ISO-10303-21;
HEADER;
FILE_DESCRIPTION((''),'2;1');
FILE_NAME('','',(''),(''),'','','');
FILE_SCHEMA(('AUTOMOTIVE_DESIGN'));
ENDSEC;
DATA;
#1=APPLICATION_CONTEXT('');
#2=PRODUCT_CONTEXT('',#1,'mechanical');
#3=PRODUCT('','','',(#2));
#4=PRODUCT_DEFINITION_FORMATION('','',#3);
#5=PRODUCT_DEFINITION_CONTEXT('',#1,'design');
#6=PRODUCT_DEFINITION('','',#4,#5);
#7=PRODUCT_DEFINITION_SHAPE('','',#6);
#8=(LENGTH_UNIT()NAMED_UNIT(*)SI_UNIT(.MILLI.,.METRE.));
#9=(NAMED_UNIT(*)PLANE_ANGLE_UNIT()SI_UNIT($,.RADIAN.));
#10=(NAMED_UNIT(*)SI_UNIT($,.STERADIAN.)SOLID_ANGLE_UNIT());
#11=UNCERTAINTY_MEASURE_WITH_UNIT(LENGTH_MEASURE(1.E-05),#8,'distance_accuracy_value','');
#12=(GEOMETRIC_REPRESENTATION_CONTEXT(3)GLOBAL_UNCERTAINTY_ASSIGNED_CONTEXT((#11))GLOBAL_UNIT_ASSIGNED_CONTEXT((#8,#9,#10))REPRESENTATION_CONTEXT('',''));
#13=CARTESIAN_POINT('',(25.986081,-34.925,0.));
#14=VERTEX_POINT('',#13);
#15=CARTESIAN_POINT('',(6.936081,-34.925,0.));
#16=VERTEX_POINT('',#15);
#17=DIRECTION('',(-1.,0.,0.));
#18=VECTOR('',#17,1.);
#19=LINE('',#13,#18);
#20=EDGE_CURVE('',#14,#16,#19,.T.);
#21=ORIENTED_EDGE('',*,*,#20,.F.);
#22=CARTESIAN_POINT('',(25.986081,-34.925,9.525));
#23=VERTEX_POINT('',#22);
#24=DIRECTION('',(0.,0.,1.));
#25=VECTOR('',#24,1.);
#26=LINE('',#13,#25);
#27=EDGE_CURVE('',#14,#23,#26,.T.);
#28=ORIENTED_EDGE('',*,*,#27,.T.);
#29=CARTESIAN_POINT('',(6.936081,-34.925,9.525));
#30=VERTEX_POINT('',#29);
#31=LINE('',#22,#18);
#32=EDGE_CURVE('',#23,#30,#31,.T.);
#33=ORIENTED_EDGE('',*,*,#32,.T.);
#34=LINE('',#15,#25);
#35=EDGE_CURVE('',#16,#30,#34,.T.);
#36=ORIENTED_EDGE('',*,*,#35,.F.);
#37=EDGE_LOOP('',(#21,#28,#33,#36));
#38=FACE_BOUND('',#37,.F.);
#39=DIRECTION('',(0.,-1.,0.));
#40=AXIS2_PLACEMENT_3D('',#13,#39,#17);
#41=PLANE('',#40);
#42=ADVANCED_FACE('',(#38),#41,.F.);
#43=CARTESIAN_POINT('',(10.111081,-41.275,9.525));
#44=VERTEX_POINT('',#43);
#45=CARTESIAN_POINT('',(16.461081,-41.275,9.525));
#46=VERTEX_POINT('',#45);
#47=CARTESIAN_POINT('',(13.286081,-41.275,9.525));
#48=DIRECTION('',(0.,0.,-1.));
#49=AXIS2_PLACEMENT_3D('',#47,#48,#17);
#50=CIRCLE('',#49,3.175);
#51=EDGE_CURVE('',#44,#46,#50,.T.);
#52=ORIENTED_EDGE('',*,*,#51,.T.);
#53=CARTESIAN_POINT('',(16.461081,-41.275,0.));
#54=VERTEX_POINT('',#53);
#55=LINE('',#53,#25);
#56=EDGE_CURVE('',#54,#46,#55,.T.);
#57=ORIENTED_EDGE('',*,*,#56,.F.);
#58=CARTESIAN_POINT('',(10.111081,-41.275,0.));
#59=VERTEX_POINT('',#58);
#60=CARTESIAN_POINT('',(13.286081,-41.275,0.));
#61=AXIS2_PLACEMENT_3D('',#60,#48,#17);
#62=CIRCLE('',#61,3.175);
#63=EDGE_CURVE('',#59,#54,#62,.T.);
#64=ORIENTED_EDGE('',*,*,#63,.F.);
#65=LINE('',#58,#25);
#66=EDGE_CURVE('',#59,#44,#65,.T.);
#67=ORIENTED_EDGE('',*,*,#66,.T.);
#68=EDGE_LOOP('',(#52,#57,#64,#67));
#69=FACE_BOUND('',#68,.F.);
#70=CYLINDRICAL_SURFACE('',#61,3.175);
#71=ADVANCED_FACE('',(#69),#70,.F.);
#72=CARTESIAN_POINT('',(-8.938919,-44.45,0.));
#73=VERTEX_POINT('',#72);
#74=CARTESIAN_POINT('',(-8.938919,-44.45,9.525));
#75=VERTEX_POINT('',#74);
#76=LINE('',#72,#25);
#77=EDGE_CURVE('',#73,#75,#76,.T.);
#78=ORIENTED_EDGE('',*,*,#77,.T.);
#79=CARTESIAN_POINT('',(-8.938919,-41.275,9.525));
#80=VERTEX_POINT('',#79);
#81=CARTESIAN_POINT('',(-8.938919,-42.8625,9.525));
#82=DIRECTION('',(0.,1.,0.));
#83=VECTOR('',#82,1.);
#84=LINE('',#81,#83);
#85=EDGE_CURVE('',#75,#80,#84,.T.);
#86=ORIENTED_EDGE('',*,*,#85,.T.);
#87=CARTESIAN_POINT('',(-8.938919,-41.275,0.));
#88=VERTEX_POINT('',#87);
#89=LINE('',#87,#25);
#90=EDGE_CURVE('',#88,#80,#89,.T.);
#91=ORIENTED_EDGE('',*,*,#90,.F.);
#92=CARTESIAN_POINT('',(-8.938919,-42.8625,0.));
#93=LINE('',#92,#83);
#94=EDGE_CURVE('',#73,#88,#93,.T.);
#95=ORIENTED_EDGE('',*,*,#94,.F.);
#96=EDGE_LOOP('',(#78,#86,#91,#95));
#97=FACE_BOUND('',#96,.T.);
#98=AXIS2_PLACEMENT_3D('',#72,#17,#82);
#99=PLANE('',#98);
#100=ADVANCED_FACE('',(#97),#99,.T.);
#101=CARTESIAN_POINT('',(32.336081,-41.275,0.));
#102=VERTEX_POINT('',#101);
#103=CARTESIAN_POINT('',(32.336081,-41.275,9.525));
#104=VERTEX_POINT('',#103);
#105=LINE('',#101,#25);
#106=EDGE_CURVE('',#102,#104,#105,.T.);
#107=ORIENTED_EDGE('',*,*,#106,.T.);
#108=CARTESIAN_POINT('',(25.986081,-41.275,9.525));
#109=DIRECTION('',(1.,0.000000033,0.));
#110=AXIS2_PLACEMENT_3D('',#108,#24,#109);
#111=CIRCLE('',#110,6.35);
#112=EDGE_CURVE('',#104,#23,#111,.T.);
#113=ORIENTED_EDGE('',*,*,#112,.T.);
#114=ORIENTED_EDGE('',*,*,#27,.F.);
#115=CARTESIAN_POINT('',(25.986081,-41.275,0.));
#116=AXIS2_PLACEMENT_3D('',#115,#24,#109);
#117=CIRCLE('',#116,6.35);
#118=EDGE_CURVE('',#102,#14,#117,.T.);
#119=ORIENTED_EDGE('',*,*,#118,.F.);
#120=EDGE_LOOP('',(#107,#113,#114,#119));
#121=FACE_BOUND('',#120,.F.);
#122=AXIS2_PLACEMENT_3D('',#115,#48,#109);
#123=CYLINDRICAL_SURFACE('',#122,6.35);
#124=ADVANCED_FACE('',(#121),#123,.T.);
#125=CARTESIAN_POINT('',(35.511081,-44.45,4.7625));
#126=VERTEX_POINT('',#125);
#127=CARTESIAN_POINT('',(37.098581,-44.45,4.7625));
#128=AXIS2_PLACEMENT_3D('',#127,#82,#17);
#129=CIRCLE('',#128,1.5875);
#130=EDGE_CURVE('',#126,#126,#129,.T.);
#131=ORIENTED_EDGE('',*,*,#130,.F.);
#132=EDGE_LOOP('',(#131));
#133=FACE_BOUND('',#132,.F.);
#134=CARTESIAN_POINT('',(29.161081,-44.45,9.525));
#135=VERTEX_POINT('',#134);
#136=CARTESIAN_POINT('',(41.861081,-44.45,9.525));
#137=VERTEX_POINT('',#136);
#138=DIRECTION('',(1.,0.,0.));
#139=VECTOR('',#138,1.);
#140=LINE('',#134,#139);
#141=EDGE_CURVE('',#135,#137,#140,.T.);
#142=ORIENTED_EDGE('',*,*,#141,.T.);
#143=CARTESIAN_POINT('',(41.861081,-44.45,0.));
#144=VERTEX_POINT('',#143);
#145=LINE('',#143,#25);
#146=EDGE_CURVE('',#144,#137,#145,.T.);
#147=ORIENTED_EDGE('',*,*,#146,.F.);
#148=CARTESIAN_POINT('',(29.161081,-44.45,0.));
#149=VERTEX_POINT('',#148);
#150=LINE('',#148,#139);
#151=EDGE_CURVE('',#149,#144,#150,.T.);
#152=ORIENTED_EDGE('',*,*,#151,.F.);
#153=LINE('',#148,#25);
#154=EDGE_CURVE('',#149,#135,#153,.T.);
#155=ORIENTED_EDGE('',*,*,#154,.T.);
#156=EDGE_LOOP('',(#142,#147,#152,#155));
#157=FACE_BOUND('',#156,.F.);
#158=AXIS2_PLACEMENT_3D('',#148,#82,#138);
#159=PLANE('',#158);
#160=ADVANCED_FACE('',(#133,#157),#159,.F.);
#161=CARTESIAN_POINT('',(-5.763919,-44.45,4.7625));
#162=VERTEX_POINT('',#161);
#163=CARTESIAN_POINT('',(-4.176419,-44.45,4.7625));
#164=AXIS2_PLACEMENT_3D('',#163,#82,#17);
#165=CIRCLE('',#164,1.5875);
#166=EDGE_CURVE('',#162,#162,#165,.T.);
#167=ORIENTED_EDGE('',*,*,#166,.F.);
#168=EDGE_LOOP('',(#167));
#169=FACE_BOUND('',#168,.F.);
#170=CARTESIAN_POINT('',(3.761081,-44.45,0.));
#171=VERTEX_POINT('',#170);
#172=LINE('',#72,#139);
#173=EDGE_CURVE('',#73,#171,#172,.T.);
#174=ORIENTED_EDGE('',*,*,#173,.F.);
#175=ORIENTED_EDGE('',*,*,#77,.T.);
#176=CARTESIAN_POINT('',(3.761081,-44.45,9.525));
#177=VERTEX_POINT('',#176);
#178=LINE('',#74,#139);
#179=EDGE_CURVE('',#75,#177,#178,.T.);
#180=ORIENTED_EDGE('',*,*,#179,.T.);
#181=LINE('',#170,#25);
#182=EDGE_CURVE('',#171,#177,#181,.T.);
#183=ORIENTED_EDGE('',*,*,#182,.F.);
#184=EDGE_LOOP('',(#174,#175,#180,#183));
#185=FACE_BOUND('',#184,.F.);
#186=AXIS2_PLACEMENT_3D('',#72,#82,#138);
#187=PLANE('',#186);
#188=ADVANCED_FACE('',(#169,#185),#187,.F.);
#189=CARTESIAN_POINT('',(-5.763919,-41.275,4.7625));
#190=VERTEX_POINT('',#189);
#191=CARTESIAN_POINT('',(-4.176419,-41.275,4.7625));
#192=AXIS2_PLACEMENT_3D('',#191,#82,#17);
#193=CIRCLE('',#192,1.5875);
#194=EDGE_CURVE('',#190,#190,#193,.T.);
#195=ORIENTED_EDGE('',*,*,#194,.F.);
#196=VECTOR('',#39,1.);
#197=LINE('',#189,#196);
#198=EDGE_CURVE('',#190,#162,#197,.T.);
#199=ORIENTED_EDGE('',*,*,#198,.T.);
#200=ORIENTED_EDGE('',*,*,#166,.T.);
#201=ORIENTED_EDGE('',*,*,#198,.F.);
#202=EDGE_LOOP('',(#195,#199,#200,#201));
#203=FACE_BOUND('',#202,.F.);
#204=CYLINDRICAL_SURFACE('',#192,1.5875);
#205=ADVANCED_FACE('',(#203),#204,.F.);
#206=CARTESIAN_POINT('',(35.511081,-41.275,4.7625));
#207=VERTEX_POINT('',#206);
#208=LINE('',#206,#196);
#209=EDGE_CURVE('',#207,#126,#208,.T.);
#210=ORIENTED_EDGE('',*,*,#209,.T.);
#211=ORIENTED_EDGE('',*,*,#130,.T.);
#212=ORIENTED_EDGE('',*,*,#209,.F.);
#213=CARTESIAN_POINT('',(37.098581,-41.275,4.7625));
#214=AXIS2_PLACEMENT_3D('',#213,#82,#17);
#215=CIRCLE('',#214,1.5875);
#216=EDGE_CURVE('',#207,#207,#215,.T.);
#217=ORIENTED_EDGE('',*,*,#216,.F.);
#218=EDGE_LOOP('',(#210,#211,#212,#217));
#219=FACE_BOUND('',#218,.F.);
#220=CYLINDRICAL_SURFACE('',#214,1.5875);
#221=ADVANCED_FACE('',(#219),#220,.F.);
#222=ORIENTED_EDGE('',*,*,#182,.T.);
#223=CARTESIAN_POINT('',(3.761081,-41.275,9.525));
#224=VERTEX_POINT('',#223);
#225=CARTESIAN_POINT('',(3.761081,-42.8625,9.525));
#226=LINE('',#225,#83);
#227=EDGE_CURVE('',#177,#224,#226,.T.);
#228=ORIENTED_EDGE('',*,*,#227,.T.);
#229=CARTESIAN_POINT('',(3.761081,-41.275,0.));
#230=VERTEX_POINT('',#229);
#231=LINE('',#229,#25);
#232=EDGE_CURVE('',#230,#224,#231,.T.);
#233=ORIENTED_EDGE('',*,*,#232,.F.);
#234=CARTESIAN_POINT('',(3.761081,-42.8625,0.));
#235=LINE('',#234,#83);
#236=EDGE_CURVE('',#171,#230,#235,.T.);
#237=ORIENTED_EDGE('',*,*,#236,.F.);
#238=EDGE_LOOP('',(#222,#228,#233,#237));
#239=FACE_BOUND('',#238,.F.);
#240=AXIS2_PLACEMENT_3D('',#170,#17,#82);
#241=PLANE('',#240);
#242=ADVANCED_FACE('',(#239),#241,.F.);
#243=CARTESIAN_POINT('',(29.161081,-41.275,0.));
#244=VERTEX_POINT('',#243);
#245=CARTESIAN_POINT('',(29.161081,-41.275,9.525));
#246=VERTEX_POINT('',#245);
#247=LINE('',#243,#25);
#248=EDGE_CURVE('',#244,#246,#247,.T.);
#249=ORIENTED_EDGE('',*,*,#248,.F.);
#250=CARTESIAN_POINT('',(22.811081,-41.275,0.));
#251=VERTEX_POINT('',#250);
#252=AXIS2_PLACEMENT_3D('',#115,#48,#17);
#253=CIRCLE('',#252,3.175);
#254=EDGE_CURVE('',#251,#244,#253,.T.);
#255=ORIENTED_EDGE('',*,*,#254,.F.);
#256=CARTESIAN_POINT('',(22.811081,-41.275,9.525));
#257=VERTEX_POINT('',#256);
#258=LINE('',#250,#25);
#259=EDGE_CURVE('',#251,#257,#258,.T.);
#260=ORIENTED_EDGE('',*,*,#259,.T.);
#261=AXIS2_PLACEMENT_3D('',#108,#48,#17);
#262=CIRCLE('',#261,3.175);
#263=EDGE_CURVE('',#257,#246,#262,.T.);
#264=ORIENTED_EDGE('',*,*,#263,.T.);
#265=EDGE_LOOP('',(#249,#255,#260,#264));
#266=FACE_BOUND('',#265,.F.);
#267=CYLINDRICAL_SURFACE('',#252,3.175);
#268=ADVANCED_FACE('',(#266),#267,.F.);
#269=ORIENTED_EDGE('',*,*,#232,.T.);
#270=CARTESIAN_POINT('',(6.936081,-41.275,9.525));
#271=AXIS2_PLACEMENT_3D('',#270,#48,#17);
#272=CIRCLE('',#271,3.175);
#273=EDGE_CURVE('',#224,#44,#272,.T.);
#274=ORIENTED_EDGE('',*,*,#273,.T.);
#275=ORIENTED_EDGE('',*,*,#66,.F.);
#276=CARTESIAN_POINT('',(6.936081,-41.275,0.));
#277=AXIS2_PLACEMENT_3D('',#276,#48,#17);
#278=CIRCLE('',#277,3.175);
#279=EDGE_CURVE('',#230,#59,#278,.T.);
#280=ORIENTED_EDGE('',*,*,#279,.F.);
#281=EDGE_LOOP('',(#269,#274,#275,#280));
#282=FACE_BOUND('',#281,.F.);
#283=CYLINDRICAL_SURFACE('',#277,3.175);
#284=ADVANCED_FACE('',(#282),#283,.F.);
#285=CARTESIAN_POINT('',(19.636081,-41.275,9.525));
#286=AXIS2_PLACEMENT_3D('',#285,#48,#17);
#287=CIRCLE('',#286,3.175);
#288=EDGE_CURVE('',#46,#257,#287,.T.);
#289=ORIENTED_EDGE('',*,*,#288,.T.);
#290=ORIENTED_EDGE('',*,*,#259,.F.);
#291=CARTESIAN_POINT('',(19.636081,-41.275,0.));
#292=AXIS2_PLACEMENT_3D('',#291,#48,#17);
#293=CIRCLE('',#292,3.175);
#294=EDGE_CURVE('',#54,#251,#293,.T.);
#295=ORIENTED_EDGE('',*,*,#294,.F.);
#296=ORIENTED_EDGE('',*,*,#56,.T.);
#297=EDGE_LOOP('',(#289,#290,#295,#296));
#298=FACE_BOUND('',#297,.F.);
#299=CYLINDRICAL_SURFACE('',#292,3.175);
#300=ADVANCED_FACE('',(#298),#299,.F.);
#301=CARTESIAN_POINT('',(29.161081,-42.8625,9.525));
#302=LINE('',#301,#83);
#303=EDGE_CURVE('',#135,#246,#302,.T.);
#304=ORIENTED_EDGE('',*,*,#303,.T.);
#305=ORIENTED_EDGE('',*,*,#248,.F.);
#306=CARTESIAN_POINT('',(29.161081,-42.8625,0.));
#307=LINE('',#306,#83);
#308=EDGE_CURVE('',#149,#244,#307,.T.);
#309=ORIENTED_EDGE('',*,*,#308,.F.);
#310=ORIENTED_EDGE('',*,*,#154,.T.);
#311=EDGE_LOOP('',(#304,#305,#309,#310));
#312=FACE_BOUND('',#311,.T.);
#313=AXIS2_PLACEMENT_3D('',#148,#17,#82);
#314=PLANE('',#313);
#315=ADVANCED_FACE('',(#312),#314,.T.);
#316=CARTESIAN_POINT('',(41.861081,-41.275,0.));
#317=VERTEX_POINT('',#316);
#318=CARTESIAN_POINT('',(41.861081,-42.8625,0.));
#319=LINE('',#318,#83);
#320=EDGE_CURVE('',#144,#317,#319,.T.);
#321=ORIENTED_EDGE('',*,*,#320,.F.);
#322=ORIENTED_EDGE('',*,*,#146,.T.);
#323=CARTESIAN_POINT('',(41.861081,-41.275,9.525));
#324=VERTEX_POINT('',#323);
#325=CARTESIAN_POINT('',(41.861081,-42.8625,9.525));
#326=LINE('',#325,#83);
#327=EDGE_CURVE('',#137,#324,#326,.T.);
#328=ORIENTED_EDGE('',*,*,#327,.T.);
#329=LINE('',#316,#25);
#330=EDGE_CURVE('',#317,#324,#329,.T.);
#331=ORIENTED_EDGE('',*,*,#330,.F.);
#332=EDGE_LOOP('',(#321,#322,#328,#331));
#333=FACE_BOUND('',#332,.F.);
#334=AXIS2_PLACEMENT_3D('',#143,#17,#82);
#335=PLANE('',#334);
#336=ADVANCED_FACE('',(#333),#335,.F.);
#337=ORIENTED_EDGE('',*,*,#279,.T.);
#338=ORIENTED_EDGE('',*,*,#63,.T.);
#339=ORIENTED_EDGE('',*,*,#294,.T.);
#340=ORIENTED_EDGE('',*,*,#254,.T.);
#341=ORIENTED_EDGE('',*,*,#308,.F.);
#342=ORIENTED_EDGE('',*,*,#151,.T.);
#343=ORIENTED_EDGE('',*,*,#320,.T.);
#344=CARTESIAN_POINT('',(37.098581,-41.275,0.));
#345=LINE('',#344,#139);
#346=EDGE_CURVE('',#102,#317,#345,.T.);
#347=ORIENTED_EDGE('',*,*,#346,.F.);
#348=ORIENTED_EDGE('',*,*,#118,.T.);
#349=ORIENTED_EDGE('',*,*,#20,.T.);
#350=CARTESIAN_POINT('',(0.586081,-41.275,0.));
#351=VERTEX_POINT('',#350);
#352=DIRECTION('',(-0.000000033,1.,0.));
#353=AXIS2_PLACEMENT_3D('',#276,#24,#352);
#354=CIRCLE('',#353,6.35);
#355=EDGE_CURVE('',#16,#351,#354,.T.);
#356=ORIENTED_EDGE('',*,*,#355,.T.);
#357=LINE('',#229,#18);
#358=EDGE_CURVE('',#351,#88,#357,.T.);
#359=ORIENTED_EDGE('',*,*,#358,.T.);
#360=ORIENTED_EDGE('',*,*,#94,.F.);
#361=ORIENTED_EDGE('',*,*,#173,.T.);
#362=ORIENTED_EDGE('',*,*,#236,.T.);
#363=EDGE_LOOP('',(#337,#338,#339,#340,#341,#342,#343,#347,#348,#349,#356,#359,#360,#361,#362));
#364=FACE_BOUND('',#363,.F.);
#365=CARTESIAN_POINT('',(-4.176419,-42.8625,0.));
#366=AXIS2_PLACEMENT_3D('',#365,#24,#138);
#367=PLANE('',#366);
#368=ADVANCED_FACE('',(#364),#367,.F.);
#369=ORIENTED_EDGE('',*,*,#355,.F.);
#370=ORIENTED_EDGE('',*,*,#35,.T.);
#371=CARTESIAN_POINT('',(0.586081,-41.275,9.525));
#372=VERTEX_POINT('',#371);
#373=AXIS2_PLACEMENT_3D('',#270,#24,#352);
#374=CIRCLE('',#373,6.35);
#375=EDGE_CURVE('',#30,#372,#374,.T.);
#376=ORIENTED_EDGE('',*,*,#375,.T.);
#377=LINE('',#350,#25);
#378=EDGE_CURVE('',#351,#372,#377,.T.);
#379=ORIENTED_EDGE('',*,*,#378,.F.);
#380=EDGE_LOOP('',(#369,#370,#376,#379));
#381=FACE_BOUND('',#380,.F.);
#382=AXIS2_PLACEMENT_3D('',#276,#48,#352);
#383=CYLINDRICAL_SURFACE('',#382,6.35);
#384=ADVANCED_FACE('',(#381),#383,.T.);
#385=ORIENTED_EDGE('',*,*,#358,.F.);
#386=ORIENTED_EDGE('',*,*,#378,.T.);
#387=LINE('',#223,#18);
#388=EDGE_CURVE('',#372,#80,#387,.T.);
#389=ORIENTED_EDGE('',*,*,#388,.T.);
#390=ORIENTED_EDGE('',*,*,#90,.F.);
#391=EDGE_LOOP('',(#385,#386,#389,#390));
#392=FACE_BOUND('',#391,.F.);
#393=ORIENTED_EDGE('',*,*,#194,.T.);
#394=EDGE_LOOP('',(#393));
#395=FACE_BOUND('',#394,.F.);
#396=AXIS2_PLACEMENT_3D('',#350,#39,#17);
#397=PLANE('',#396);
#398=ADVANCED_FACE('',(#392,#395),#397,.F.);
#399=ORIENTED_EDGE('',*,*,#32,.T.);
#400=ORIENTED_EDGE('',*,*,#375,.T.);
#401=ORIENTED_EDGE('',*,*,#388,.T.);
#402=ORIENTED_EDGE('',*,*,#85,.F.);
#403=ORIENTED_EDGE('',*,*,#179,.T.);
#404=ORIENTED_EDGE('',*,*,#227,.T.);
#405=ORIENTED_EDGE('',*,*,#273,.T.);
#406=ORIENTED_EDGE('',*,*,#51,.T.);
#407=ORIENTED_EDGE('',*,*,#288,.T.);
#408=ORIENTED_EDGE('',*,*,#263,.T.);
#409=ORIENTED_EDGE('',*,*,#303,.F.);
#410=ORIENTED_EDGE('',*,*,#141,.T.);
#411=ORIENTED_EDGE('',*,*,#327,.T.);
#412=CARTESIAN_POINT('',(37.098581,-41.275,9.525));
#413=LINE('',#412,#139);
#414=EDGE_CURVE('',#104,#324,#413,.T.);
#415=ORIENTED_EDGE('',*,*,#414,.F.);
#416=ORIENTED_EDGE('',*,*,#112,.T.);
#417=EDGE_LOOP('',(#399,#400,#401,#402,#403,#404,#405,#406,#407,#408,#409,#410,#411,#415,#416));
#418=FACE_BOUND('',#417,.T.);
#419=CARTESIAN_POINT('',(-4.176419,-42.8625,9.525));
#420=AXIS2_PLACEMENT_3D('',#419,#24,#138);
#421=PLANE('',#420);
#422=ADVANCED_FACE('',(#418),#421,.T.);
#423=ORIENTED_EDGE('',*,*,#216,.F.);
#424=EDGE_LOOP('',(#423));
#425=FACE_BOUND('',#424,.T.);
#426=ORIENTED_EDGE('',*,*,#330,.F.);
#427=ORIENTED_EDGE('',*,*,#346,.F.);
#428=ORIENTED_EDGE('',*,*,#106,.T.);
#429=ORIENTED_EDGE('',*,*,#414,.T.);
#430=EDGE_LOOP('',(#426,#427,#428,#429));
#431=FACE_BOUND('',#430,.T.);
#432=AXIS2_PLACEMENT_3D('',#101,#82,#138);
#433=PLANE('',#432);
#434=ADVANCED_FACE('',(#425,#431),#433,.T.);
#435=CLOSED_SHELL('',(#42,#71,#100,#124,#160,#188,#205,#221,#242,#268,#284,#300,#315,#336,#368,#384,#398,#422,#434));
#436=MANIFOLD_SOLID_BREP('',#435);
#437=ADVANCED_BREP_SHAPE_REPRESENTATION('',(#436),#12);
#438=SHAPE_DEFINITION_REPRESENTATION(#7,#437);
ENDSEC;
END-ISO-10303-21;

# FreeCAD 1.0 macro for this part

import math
import FreeCAD as App
import Part
import Sketcher

V = App.Vector
Q = App.Units.Quantity

doc = App.newDocument("Part")
body = doc.addObject("PartDesign::Body", "Body")

# Sketch on XY plane
sketch1 = body.newObject("Sketcher::SketchObject", "Sketch")
sketch1.AttachmentSupport = (doc.getObject("XY_Plane"), [""])
sketch1.MapMode = "FlatFace"
sketch1.addGeometry([
    Part.LineSegment(V(-8.9, -41.3, 0), V(-8.9, -44.5, 0)),  # 0
    Part.LineSegment(V(-8.9, -44.5, 0), V(3.8, -44.5, 0)),  # 1
    Part.LineSegment(V(3.8, -44.5, 0), V(3.8, -41.3, 0)),  # 2
    Part.ArcOfCircle(Part.Circle(V(6.9, -41.3, 0), V(0, 0, 1), 3.2), math.radians(0), math.radians(180)),  # 3
    Part.ArcOfCircle(Part.Circle(V(13.3, -41.3, 0), V(0, 0, 1), 3.2), math.radians(0), math.radians(180)),  # 4
    Part.ArcOfCircle(Part.Circle(V(19.6, -41.3, 0), V(0, 0, 1), 3.2), math.radians(0), math.radians(180)),  # 5
    Part.ArcOfCircle(Part.Circle(V(26, -41.3, 0), V(0, 0, 1), 3.2), math.radians(0), math.radians(180)),  # 6
    Part.LineSegment(V(29.2, -41.3, 0), V(29.2, -44.5, 0)),  # 7
    Part.LineSegment(V(29.2, -44.5, 0), V(41.9, -44.5, 0)),  # 8
    Part.LineSegment(V(41.9, -44.5, 0), V(41.9, -41.3, 0)),  # 9
    Part.LineSegment(V(41.9, -41.3, 0), V(32.3, -41.3, 0)),  # 10
    Part.ArcOfCircle(Part.Circle(V(26, -41.3, 0), V(0, 0, 1), 6.4), math.radians(0), math.radians(90)),  # 11
    Part.LineSegment(V(26, -34.9, 0), V(6.9, -34.9, 0)),  # 12
    Part.ArcOfCircle(Part.Circle(V(6.9, -41.3, 0), V(0, 0, 1), 6.4), math.radians(90), math.radians(180)),  # 13
    Part.LineSegment(V(0.6, -41.3, 0), V(-8.9, -41.3, 0)),  # 14
], False)
sketch1.addConstraint([
    Sketcher.Constraint("Coincident", 0, 2, 1, 1),
    Sketcher.Constraint("Coincident", 1, 2, 2, 1),
    Sketcher.Constraint("Tangent", 2, 2, 3, 2),
    Sketcher.Constraint("Tangent", 3, 1, 4, 2),
    Sketcher.Constraint("Tangent", 4, 1, 5, 2),
    Sketcher.Constraint("Tangent", 5, 1, 6, 2),
    Sketcher.Constraint("Tangent", 6, 1, 7, 1),
    Sketcher.Constraint("Coincident", 7, 2, 8, 1),
    Sketcher.Constraint("Coincident", 8, 2, 9, 1),
    Sketcher.Constraint("Coincident", 9, 2, 10, 1),
    Sketcher.Constraint("Coincident", 10, 2, 11, 1),
    Sketcher.Constraint("Tangent", 11, 2, 12, 1),
    Sketcher.Constraint("Tangent", 12, 2, 13, 1),
    Sketcher.Constraint("Coincident", 13, 2, 14, 1),
    Sketcher.Constraint("Coincident", 14, 2, 0, 1),
    Sketcher.Constraint("Vertical", 0),
    Sketcher.Constraint("Horizontal", 1),
    Sketcher.Constraint("Vertical", 2),
    Sketcher.Constraint("Vertical", 7),
    Sketcher.Constraint("Horizontal", 8),
    Sketcher.Constraint("Vertical", 9),
    Sketcher.Constraint("Horizontal", 10),
    Sketcher.Constraint("Horizontal", 12),
    Sketcher.Constraint("Horizontal", 14),
    Sketcher.Constraint("Coincident", 11, 3, 6, 3),
    Sketcher.Constraint("Coincident", 13, 3, 3, 3),
    Sketcher.Constraint("Equal", 3, 4),
    Sketcher.Constraint("Equal", 4, 5),
    Sketcher.Constraint("Equal", 5, 6),
    Sketcher.Constraint("Equal", 11, 13),
    Sketcher.Constraint("Horizontal", 3, 3, 4, 3),
    Sketcher.Constraint("Horizontal", 4, 3, 5, 3),
    Sketcher.Constraint("Horizontal", 1, 2, 7, 2),
    Sketcher.Constraint("Horizontal", 6, 1, 9, 2),
    Sketcher.Constraint("Horizontal", 10, 2, 13, 2),
    Sketcher.Constraint("Equal", 1, 8),
    Sketcher.Constraint("Radius", 11, Q("0.25 in")),
    Sketcher.Constraint("DistanceX", 1, 1, 1, 2, Q("0.5 in")),
    Sketcher.Constraint("Radius", 3, Q("0.125 in")),
    Sketcher.Constraint("DistanceY", 0, 2, 0, 1, Q("0.125 in")),
    Sketcher.Constraint("DistanceY", 0, 2, -1, 1, Q("1.75 in")),
    Sketcher.Constraint("DistanceX", -1, 1, 3, 3, 6.936081),
])
pad1 = body.newObject("PartDesign::Pad", "Pad")
pad1.Profile = sketch1
pad1.Length = Q("0.375 in")

# Sketch on XZ plane
sketch2 = body.newObject("Sketcher::SketchObject", "Sketch001")
sketch2.AttachmentSupport = (doc.getObject("XZ_Plane"), [""])
sketch2.MapMode = "FlatFace"
sketch2.AttachmentOffset = App.Placement(V(0, 0, 1.625 * 25.4), App.Rotation())
sketch2.addGeometry([
    Part.Circle(V(-4.2, 4.8, 0), V(0, 0, 1), 1.6),
    Part.Circle(V(37.1, 4.8, 0), V(0, 0, 1), 1.6),
], False)
sketch2.addConstraint([
    Sketcher.Constraint("Equal", 0, 1),
    Sketcher.Constraint("Horizontal", 0, 3, 1, 3),
    Sketcher.Constraint("Diameter", 0, Q("0.125 in")),
    Sketcher.Constraint("DistanceY", -1, 1, 0, 3, Q("0.1875 in")),
    Sketcher.Constraint("DistanceX", 0, 3, 1, 3, Q("1.625 in")),
    Sketcher.Constraint("DistanceX", 0, 3, -1, 1, 4.176419),
])
pocket1 = body.newObject("PartDesign::Pocket", "Pocket")
pocket1.Profile = sketch2
pocket1.Length = Q("1 in")
pocket1.Reversed = True

doc.recompute()
